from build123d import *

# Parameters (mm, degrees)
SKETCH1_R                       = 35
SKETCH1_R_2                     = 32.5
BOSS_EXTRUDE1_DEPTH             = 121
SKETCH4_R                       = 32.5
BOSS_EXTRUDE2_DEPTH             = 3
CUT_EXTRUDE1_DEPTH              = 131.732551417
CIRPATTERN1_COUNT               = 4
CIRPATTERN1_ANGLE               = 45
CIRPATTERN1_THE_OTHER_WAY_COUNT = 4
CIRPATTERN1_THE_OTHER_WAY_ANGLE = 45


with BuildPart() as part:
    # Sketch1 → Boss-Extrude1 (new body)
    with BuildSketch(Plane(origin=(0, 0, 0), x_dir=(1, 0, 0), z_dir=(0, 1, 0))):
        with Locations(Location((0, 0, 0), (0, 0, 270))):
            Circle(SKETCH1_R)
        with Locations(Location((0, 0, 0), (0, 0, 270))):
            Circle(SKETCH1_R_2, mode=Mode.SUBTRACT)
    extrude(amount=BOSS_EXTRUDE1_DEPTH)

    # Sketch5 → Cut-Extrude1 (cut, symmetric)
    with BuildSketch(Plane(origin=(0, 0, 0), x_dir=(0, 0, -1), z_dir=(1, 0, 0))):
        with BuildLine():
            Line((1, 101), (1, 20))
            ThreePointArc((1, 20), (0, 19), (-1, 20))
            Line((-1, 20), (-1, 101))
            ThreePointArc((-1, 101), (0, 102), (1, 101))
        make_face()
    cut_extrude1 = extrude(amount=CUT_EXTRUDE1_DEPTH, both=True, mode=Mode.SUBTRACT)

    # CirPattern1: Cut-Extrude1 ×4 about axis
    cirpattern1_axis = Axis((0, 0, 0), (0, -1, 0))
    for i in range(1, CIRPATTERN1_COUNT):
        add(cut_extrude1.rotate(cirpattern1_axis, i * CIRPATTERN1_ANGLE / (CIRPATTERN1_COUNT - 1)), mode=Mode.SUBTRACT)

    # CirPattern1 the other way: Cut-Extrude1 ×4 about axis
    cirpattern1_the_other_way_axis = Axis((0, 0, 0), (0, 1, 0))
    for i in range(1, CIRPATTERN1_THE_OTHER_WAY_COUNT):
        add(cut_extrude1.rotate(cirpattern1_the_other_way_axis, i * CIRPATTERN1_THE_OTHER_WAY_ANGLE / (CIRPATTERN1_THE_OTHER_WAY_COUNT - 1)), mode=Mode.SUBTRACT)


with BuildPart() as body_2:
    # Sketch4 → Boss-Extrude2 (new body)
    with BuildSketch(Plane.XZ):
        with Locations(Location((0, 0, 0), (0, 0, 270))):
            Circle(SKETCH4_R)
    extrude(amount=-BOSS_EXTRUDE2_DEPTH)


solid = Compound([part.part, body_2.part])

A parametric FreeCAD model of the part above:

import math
import FreeCAD as App
import Part
import Sketcher
Q = App.Units.Quantity

doc = App.newDocument("Part")
params = doc.addObject("Spreadsheet::Sheet", "Params")
for row, (alias, value) in enumerate([
    ("sketch1_diameter", "70 mm"),
    ("sketch1_diameter2", "65 mm"),
    ("pad1_length", "121 mm"),
    ("sketch2_radius", "1 mm"),
    ("sketch2_width", "81 mm"),
    ("pocket1_length", "263.465103 mm"),
    ("sketch3_diameter", "65 mm"),
    ("pad2_length", "3 mm"),
], start=1):
    params.set(f"A{row}", alias)
    params.set(f"B{row}", "=" + value)
    params.setAlias(f"B{row}", alias)

body = doc.addObject("PartDesign::Body", "Body")

sketch1 = body.newObject("Sketcher::SketchObject", "Sketch")
sketch1.AttachmentSupport = (doc.getObject("XZ_Plane"), [""])
sketch1.MapMode = "FlatFace"
sketch1.addGeometry(Part.Circle(App.Vector(0, 0, 0), App.Vector(0, 0, 1), 35), False)
sketch1.addGeometry(Part.Circle(App.Vector(0, 0, 0), App.Vector(0, 0, 1), 32), False)
sketch1.addConstraint(Sketcher.Constraint("Coincident", 0, 3, -1, 1))
sketch1.addConstraint(Sketcher.Constraint("Coincident", 1, 3, -1, 1))
sketch1.addConstraint(Sketcher.Constraint("Diameter", 0, Q("70 mm")))
sketch1.addConstraint(Sketcher.Constraint("Diameter", 1, Q("65 mm")))
sketch1.setExpression("Constraints[2]", "Params.sketch1_diameter")
sketch1.setExpression("Constraints[3]", "Params.sketch1_diameter2")
pad1 = body.newObject("PartDesign::Pad", "Pad")
pad1.Profile = sketch1
pad1.setExpression("Length", "Params.pad1_length")
pad1.Reversed = True

sketch2 = body.newObject("Sketcher::SketchObject", "Sketch001")
sketch2.AttachmentSupport = (doc.getObject("YZ_Plane"), [""])
sketch2.MapMode = "FlatFace"
sketch2.addGeometry(Part.LineSegment(App.Vector(20, -1, 0), App.Vector(101, -1, 0)), False)
sketch2.addGeometry(Part.ArcOfCircle(Part.Circle(App.Vector(101, 0, 0), App.Vector(0, 0, 1), 1), math.radians(-90), math.radians(90)), False)
sketch2.addGeometry(Part.LineSegment(App.Vector(101, 1, 0), App.Vector(20, 1, 0)), False)
sketch2.addGeometry(Part.ArcOfCircle(Part.Circle(App.Vector(20, 0, 0), App.Vector(0, 0, 1), 1), math.radians(90), math.radians(270)), False)
sketch2.addConstraint(Sketcher.Constraint("Tangent", 0, 2, 1, 1))
sketch2.addConstraint(Sketcher.Constraint("Tangent", 1, 2, 2, 1))
sketch2.addConstraint(Sketcher.Constraint("Tangent", 2, 2, 3, 1))
sketch2.addConstraint(Sketcher.Constraint("Tangent", 3, 2, 0, 1))
sketch2.addConstraint(Sketcher.Constraint("Horizontal", 0))
sketch2.addConstraint(Sketcher.Constraint("Horizontal", 2))
sketch2.addConstraint(Sketcher.Constraint("PointOnObject", 1, 3, -1))
sketch2.addConstraint(Sketcher.Constraint("Radius", 1, Q("1 mm")))
sketch2.addConstraint(Sketcher.Constraint("DistanceX", 0, 1, 0, 2, Q("81 mm")))
sketch2.addConstraint(Sketcher.Constraint("DistanceX", -1, 1, 1, 3, Q("101 mm")))
sketch2.setExpression("Constraints[7]", "Params.sketch2_radius")
sketch2.setExpression("Constraints[8]", "Params.sketch2_width")
pocket1 = body.newObject("PartDesign::Pocket", "Pocket")
pocket1.Profile = sketch2
pocket1.setExpression("Length", "Params.pocket1_length")
pocket1.Midplane = True
doc.recompute()

polarpattern = body.newObject("PartDesign::PolarPattern", "PolarPattern")
polarpattern.Originals = [pocket1]
polarpattern.Axis = (doc.getObject("Y_Axis"), [""])
polarpattern.Angle = 45
polarpattern.Occurrences = 4
polarpattern.Reversed = True
body.Tip = polarpattern
doc.recompute()

polarpattern2 = body.newObject("PartDesign::PolarPattern", "PolarPattern001")
polarpattern2.Originals = [pocket1]
polarpattern2.Axis = (doc.getObject("Y_Axis"), [""])
polarpattern2.Angle = 45
polarpattern2.Occurrences = 4
body.Tip = polarpattern2
body2 = doc.addObject("PartDesign::Body", "Body001")

sketch3 = body2.newObject("Sketcher::SketchObject", "Sketch002")
sketch3.AttachmentSupport = (doc.getObject("XZ_Plane001"), [""])
sketch3.MapMode = "FlatFace"
sketch3.addGeometry(Part.Circle(App.Vector(0, 0, 0), App.Vector(0, 0, 1), 32), False)
sketch3.addConstraint(Sketcher.Constraint("Coincident", 0, 3, -1, 1))
sketch3.addConstraint(Sketcher.Constraint("Diameter", 0, Q("65 mm")))
sketch3.setExpression("Constraints[1]", "Params.sketch3_diameter")
pad2 = body2.newObject("PartDesign::Pad", "Pad001")
pad2.Profile = sketch3
pad2.setExpression("Length", "Params.pad2_length")
pad2.Reversed = True

doc.recompute()
